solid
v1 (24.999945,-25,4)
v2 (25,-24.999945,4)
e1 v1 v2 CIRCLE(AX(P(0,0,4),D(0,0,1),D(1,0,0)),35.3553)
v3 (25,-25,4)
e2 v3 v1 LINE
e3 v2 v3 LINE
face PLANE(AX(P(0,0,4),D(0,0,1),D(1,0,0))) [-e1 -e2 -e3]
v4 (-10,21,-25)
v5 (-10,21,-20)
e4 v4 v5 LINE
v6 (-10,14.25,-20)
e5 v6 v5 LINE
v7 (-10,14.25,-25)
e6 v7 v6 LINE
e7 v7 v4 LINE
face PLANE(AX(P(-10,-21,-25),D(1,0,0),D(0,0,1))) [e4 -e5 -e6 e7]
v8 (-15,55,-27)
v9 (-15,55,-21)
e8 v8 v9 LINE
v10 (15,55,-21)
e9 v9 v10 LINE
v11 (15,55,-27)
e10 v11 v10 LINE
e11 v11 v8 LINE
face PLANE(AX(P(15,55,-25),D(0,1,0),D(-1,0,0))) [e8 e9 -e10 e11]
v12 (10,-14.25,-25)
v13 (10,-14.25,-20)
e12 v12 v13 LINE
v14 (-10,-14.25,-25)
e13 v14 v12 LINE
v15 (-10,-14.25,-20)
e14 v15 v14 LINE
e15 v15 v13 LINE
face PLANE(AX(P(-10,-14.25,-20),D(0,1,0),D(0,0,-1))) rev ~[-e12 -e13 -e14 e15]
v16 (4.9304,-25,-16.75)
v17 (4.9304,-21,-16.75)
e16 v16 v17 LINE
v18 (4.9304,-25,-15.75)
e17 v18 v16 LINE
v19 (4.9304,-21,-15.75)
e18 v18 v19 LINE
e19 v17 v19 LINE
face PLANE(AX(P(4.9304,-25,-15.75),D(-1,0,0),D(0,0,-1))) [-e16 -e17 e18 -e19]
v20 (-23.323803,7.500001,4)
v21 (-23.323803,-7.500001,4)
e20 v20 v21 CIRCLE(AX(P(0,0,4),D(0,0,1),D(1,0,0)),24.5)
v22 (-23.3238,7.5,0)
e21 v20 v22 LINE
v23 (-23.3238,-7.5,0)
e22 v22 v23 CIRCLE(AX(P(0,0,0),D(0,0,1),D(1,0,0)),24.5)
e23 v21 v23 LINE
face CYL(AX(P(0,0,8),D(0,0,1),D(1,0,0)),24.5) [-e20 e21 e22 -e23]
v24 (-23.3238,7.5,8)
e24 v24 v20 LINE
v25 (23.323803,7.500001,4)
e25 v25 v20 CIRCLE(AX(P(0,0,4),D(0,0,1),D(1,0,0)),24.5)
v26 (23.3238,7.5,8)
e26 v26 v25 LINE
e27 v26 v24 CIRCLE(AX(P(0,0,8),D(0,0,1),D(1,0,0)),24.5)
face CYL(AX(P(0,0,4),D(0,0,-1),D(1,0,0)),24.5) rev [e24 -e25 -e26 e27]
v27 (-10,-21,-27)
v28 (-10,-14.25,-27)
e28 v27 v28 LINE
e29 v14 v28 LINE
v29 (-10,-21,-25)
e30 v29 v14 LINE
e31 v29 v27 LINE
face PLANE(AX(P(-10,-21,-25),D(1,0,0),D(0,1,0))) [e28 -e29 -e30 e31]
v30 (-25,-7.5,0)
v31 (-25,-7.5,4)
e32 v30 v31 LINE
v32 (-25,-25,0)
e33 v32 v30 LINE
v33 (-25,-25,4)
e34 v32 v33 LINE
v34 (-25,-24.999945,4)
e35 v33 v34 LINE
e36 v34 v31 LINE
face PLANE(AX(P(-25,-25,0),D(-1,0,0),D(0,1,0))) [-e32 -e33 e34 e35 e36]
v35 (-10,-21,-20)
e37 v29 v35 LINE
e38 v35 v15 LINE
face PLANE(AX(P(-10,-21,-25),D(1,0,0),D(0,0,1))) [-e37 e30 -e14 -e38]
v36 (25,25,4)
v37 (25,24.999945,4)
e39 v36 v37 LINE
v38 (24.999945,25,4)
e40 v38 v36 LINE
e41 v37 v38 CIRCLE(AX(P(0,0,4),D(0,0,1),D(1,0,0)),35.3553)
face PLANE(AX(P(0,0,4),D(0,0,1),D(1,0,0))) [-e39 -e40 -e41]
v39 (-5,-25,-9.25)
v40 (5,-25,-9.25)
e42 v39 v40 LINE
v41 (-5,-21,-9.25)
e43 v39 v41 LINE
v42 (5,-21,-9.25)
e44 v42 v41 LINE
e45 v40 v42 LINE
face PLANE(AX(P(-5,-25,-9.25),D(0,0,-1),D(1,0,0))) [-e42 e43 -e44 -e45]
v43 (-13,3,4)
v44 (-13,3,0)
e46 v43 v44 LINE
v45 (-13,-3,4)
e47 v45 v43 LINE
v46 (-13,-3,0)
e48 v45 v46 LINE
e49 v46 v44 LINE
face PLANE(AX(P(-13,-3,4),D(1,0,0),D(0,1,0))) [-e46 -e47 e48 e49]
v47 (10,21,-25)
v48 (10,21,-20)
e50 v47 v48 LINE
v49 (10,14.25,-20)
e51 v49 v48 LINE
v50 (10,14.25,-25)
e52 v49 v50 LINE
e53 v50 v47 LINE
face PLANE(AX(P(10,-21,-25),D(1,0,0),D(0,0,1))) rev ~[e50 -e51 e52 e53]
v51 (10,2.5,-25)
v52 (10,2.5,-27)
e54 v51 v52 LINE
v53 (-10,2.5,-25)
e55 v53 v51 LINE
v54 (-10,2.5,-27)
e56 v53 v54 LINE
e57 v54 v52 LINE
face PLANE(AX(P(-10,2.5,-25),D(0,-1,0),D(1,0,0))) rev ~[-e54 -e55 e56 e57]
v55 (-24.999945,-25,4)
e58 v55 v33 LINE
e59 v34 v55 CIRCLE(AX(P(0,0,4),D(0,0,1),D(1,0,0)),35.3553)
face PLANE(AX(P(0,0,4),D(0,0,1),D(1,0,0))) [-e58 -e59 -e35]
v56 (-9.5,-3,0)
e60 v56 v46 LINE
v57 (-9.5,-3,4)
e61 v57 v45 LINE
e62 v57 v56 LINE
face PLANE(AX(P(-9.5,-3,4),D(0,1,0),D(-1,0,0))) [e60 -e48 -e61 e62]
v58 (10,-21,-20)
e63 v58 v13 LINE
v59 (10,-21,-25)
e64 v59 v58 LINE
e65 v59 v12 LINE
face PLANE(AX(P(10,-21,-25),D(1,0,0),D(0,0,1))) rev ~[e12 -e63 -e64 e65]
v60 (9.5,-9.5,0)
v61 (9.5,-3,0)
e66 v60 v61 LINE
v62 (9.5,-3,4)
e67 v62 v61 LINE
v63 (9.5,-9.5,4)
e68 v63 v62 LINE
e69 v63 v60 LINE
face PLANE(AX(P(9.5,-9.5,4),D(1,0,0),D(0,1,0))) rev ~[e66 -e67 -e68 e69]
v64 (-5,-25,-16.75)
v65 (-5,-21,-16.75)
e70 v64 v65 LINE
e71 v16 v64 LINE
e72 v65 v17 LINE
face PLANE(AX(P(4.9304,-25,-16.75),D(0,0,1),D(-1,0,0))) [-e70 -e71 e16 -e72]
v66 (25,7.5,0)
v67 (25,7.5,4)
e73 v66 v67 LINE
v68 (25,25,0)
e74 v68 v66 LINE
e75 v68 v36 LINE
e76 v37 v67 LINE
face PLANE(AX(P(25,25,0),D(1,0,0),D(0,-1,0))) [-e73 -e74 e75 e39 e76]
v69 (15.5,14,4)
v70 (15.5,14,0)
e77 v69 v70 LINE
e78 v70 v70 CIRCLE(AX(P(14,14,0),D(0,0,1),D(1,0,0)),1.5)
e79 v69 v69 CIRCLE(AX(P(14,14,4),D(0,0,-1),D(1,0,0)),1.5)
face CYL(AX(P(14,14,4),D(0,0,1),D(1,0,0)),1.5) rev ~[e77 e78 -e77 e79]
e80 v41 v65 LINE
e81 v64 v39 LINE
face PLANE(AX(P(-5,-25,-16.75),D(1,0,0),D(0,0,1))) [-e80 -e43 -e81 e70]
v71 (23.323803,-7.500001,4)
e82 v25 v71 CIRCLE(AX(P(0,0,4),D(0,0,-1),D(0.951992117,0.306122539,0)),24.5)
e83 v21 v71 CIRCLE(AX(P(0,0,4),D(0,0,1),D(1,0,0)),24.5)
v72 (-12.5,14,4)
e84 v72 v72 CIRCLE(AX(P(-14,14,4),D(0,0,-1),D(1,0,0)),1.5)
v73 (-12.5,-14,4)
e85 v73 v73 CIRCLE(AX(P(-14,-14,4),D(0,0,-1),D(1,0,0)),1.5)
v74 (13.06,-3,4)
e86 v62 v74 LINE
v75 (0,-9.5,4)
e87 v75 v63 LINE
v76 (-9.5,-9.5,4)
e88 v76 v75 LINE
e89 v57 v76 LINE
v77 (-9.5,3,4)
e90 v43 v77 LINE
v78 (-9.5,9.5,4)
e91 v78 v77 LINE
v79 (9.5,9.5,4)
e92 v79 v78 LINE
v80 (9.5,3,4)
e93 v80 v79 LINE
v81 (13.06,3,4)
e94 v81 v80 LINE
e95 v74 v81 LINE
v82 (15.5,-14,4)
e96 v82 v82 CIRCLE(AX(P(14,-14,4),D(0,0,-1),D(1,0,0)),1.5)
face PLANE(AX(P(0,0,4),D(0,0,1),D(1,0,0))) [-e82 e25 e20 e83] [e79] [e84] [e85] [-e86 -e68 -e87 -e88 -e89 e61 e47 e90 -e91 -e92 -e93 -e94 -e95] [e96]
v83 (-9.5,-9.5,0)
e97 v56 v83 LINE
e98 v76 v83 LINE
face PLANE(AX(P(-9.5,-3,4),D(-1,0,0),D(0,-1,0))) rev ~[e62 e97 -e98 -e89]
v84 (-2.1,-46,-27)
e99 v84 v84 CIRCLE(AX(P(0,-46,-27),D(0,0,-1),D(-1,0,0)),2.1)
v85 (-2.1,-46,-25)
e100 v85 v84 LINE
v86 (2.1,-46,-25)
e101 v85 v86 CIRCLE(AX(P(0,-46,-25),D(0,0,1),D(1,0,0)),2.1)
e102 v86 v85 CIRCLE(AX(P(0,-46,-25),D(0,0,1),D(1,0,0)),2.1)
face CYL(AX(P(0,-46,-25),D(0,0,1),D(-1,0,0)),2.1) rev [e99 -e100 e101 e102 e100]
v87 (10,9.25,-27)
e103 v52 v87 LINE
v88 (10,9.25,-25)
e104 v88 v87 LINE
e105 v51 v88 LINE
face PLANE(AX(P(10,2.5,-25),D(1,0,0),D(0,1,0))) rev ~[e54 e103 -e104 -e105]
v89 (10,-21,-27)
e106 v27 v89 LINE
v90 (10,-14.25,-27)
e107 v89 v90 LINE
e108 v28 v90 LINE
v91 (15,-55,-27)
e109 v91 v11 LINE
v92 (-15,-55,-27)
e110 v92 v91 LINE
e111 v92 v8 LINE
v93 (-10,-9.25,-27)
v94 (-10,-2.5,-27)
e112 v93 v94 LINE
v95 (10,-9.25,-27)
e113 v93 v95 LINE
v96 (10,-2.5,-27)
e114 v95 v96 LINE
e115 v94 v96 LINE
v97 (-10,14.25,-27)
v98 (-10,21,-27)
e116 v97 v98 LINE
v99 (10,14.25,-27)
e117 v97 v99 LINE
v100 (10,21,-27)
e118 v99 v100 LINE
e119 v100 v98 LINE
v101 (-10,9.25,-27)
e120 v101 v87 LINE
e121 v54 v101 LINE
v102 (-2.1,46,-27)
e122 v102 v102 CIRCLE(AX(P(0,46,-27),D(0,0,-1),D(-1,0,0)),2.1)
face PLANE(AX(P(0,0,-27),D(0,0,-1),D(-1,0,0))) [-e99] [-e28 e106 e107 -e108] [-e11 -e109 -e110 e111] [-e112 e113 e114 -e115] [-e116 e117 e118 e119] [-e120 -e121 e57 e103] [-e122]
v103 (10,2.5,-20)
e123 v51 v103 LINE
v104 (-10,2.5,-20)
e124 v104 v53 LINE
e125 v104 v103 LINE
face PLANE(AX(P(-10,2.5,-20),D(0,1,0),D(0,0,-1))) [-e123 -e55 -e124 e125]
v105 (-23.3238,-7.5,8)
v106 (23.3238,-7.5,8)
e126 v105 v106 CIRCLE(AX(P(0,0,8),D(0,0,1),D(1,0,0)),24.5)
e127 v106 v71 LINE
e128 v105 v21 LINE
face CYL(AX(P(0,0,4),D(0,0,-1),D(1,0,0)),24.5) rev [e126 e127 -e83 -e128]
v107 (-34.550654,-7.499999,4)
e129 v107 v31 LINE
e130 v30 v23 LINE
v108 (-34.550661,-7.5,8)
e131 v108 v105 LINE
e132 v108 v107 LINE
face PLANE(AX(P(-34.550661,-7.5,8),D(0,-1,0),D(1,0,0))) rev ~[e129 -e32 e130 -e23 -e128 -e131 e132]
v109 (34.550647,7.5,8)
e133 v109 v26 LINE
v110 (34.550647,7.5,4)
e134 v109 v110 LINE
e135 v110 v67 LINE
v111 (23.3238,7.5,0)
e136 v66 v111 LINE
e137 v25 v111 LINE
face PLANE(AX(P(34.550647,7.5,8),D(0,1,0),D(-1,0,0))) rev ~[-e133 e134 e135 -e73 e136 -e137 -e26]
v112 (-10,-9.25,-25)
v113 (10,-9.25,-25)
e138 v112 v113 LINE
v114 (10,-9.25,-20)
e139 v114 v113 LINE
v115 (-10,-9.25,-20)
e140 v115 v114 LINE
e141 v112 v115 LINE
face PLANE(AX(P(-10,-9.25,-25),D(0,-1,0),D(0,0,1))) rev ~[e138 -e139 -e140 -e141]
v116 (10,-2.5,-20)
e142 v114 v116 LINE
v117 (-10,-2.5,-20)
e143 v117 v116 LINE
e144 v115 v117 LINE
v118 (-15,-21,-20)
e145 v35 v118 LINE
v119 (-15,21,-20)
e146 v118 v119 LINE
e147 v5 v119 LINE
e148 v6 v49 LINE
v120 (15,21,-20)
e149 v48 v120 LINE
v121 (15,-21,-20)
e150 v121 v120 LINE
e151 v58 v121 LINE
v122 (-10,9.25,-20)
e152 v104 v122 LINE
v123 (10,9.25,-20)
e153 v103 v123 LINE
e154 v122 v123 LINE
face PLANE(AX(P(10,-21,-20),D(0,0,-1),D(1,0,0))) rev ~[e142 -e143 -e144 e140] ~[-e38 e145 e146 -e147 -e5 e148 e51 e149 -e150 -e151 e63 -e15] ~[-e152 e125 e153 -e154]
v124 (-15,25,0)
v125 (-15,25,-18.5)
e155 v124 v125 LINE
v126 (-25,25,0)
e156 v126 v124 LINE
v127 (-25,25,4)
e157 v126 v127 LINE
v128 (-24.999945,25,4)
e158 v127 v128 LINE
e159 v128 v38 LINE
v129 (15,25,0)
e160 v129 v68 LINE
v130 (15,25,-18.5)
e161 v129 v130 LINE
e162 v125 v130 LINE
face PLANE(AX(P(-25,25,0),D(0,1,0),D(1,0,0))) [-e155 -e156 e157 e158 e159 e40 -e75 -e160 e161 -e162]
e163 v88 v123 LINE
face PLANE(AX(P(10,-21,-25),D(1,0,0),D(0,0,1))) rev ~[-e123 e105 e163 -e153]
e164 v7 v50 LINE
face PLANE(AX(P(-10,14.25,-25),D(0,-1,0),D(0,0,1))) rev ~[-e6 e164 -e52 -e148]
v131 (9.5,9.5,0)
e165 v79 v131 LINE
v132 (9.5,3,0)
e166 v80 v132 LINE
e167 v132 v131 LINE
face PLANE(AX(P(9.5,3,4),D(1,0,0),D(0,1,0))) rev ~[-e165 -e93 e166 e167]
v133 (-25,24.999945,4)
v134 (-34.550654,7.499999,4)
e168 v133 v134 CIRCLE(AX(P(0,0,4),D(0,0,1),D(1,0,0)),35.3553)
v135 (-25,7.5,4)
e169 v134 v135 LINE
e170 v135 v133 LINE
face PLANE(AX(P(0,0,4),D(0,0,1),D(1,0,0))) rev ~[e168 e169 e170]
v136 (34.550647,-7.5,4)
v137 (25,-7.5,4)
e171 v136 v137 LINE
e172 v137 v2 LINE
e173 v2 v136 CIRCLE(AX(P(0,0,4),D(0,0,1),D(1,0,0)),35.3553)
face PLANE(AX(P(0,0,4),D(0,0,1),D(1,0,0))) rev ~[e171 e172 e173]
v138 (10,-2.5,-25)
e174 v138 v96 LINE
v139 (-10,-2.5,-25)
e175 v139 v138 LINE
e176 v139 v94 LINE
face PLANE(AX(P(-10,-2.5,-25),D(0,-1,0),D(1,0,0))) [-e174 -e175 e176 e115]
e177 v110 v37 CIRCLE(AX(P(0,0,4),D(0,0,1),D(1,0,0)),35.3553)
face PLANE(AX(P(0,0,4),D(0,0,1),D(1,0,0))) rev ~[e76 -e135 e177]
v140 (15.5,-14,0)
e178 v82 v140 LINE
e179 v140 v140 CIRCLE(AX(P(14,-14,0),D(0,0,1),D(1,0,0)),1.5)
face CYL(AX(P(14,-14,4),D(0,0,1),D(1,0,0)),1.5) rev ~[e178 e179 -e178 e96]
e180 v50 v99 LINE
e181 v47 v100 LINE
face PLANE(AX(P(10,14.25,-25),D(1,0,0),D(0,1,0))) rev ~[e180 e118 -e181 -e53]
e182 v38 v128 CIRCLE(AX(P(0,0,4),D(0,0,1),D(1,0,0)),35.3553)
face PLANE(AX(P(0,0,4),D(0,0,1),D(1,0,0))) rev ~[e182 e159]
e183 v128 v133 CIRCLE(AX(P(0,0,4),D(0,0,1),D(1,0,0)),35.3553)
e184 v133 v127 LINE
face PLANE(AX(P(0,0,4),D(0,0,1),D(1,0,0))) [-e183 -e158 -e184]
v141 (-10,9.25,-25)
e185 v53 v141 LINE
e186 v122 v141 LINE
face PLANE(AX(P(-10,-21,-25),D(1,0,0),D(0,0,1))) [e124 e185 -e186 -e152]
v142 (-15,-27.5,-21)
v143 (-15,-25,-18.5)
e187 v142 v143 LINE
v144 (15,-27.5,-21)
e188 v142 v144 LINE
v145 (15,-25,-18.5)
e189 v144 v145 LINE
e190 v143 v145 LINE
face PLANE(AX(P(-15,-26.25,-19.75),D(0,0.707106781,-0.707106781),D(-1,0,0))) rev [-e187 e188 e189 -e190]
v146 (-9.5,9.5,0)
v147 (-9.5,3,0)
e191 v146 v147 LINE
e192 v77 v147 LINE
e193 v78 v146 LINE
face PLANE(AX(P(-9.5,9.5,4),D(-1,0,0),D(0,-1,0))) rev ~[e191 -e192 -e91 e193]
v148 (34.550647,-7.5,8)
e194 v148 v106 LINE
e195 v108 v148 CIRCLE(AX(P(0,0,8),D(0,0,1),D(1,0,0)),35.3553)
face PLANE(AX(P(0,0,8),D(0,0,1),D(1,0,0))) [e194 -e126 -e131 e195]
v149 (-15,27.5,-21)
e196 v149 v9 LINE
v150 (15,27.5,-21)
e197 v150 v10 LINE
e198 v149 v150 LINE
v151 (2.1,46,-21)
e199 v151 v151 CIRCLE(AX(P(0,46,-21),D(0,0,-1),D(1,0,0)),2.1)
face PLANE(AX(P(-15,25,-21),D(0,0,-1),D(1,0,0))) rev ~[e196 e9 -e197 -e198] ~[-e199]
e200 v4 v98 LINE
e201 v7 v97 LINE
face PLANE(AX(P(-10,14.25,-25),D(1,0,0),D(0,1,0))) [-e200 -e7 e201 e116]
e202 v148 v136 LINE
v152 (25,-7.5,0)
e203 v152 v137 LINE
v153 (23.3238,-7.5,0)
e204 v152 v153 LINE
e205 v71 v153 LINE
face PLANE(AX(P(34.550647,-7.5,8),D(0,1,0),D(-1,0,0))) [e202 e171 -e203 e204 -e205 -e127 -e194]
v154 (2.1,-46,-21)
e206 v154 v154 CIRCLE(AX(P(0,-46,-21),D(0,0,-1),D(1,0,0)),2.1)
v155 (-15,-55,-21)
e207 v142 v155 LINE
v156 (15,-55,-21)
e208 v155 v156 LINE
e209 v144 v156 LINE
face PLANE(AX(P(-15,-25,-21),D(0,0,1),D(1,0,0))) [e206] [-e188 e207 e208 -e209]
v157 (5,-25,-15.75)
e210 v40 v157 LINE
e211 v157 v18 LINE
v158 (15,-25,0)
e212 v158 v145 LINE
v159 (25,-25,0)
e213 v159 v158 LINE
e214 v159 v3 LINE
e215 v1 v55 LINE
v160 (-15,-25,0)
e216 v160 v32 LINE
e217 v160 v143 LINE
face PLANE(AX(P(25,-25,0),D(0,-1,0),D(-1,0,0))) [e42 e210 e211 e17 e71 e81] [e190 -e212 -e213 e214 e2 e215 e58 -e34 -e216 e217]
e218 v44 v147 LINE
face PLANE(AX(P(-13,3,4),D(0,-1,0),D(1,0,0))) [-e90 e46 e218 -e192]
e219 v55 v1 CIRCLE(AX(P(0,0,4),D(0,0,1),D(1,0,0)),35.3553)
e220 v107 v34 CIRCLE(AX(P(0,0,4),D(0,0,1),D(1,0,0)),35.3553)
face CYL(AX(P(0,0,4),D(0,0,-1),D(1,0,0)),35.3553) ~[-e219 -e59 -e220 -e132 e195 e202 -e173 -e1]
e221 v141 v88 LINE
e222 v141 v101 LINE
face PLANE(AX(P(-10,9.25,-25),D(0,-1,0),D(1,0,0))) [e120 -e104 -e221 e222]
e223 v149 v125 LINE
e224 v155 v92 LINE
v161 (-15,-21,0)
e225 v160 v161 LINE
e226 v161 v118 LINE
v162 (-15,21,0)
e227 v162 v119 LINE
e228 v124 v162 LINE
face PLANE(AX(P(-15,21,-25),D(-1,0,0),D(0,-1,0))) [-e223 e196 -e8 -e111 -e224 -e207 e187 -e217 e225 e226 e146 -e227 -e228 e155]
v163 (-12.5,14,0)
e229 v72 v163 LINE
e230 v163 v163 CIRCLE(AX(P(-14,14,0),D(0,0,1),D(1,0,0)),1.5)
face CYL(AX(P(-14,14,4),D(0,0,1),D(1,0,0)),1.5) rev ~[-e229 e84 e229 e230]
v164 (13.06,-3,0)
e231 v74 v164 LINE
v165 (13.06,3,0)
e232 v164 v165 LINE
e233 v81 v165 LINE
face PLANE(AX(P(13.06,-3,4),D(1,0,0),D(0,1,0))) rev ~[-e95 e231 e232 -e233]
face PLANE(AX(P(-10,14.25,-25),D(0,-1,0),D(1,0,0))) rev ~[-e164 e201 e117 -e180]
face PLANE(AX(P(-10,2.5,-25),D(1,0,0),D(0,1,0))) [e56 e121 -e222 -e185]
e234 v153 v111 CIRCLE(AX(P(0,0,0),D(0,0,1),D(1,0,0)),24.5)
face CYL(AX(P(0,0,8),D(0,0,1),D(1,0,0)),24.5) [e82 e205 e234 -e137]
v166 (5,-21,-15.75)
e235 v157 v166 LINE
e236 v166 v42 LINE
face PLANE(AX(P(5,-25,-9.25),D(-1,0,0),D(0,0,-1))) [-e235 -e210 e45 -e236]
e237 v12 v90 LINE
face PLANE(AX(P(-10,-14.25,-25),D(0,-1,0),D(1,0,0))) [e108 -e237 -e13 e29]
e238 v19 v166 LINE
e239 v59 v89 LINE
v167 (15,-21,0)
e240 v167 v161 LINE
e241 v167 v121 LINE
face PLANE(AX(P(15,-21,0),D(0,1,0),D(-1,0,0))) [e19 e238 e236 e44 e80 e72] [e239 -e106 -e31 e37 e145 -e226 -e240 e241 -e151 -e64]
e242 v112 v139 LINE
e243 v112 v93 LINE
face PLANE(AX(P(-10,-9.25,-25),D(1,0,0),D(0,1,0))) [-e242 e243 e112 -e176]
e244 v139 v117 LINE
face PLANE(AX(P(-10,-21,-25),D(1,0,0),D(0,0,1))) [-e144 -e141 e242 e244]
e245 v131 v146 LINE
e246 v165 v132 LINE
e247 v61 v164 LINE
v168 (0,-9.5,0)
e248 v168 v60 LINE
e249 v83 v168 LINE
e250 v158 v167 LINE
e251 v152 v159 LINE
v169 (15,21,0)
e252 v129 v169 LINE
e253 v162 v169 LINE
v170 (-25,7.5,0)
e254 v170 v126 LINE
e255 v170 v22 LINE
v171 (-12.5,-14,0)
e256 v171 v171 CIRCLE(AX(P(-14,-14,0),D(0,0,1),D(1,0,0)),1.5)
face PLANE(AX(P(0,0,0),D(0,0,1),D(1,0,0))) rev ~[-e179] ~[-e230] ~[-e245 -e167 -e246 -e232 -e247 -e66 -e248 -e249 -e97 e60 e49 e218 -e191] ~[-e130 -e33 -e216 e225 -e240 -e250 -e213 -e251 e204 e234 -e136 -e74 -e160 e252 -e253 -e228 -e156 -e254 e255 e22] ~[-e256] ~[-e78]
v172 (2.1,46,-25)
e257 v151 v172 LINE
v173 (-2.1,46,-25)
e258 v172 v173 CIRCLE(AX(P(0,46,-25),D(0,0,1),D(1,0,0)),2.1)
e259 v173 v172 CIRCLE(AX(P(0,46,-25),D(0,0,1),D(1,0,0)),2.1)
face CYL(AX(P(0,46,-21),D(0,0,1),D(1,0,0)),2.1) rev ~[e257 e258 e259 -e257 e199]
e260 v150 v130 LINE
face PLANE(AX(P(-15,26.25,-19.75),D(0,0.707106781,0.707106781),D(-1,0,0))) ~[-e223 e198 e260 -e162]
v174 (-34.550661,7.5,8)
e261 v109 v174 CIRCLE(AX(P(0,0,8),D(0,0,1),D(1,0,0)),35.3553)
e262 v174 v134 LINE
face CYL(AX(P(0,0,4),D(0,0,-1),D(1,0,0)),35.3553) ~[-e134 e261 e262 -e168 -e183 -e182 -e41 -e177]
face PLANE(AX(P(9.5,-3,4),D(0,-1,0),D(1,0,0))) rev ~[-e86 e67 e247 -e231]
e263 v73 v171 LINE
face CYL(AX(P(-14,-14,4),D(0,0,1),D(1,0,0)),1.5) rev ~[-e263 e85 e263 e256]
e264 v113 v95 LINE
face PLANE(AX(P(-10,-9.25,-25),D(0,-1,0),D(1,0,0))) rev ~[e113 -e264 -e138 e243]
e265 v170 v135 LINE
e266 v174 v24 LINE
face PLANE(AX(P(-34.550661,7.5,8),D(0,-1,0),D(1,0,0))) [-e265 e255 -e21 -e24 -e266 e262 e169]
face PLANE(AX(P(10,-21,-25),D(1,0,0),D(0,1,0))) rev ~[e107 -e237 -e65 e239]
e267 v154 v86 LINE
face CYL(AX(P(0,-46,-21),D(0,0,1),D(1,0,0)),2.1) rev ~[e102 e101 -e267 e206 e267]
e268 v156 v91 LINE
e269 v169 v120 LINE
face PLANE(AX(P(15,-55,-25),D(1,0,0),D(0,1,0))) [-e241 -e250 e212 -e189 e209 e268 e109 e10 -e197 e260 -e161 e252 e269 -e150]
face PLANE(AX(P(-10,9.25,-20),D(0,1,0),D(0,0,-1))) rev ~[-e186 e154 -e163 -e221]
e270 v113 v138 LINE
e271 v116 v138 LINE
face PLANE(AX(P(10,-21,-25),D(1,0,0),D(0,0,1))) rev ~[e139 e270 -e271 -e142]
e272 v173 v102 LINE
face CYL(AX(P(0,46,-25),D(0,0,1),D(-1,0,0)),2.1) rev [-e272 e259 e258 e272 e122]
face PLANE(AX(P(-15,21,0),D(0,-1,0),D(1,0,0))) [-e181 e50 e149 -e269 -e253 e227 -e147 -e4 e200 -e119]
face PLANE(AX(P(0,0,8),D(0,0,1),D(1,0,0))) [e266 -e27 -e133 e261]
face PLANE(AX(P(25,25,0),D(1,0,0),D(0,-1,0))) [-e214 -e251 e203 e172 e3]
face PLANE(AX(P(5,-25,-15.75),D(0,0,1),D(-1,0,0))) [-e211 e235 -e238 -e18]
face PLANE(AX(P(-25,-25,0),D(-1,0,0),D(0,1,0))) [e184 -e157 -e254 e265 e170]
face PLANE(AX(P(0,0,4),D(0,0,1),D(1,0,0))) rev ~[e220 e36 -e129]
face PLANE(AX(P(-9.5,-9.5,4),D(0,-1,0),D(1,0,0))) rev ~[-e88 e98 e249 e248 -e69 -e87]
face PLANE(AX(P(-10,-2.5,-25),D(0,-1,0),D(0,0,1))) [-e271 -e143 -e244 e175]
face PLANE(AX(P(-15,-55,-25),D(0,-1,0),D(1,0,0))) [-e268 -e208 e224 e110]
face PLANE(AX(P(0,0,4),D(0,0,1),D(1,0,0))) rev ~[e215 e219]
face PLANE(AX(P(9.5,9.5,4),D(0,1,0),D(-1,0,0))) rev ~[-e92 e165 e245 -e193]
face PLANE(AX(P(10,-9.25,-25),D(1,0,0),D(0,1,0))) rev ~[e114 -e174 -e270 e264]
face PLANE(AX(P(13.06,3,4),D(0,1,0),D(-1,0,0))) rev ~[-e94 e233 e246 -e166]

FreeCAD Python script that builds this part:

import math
import FreeCAD as App
import Part
import Sketcher
from FreeCAD import Vector
Q = App.Units.Quantity


def edges_at(feature, points):
    """Names of the edges that pass closest to the given points."""
    edges = feature.Shape.Edges
    near = lambda p: min(range(len(edges)), key=lambda i: edges[i].distToShape(Part.Vertex(*p))[0])
    return sorted({f"Edge{near(p) + 1}" for p in points})


def add_polygon(sketch, points):
    """Adds a closed chain of lines whose ends are joined by coincident constraints."""
    first, n = sketch.GeometryCount, len(points)
    for a, b in zip(points, points[1:] + points[:1]):
        sketch.addGeometry(Part.LineSegment(App.Vector(*a, 0), App.Vector(*b, 0)), False)
    for i in range(n):
        sketch.addConstraint(Sketcher.Constraint("Coincident", first + i, 2, first + (i + 1) % n, 1))

doc = App.newDocument("Part")
body = doc.addObject("PartDesign::Body", "Body")

sketch1 = doc.addObject("Sketcher::SketchObject", "Sketch")
body.addObject(sketch1)
sketch1.AttachmentSupport = (doc.XY_Plane, [""])
sketch1.MapMode = "FlatFace"
add_polygon(sketch1, [(25, 25), (-25, 25), (-25, -25), (25, -25)])
sketch1.addGeometry(Part.ArcOfCircle(Part.Circle(Vector(-8.2, -2.2, 0), Vector(0, 0, 1), 0.2), math.radians(0), math.radians(90)), False)
sketch1.addGeometry(Part.LineSegment(Vector(-8.2, -2, 0), Vector(-9, -2, 0)), False)
sketch1.addGeometry(Part.ArcOfCircle(Part.Circle(Vector(-9, 0, 0), Vector(0, 0, 1), 2), math.radians(90), math.radians(270)), False)
sketch1.addGeometry(Part.LineSegment(Vector(-9, 2, 0), Vector(-8.2, 2, 0)), False)
sketch1.addGeometry(Part.ArcOfCircle(Part.Circle(Vector(-8.2, 2.2, 0), Vector(0, 0, 1), 0.2), math.radians(-90), math.radians(0)), False)
sketch1.addGeometry(Part.LineSegment(Vector(-8, 2.2, 0), Vector(-8, 7.8, 0)), False)
sketch1.addGeometry(Part.ArcOfCircle(Part.Circle(Vector(-7.8, 7.8, 0), Vector(0, 0, 1), 0.2), math.radians(90), math.radians(180)), False)
sketch1.addGeometry(Part.LineSegment(Vector(-7.8, 8, 0), Vector(7.8, 8, 0)), False)
sketch1.addGeometry(Part.ArcOfCircle(Part.Circle(Vector(7.8, 7.8, 0), Vector(0, 0, 1), 0.2), math.radians(0), math.radians(90)), False)
sketch1.addGeometry(Part.LineSegment(Vector(8, 7.8, 0), Vector(8, 2.2, 0)), False)
sketch1.addGeometry(Part.ArcOfCircle(Part.Circle(Vector(8.2, 2.2, 0), Vector(0, 0, 1), 0.2), math.radians(180), math.radians(270)), False)
sketch1.addGeometry(Part.LineSegment(Vector(8.2, 2, 0), Vector(9, 2, 0)), False)
sketch1.addGeometry(Part.ArcOfCircle(Part.Circle(Vector(9, 0, 0), Vector(0, 0, 1), 2), math.radians(-90), math.radians(90)), False)
sketch1.addGeometry(Part.LineSegment(Vector(9, -2, 0), Vector(8.2, -2, 0)), False)
sketch1.addGeometry(Part.ArcOfCircle(Part.Circle(Vector(8.2, -2.2, 0), Vector(0, 0, 1), 0.2), math.radians(90), math.radians(180)), False)
sketch1.addGeometry(Part.LineSegment(Vector(8, -2.2, 0), Vector(8, -7.8, 0)), False)
sketch1.addGeometry(Part.ArcOfCircle(Part.Circle(Vector(7.8, -7.8, 0), Vector(0, 0, 1), 0.2), math.radians(-90), math.radians(0)), False)
sketch1.addGeometry(Part.LineSegment(Vector(7.8, -8, 0), Vector(0, -8, 0)), False)
sketch1.addGeometry(Part.LineSegment(Vector(0, -8, 0), Vector(-7.8, -8, 0)), False)
sketch1.addGeometry(Part.ArcOfCircle(Part.Circle(Vector(-7.8, -7.8, 0), Vector(0, 0, 1), 0.2), math.radians(180), math.radians(270)), False)
sketch1.addGeometry(Part.LineSegment(Vector(-8, -7.8, 0), Vector(-8, -2.2, 0)), False)
sketch1.addConstraint([
    Sketcher.Constraint("Tangent", 4, 2, 5, 1),
    Sketcher.Constraint("Tangent", 5, 2, 6, 2),
    Sketcher.Constraint("Tangent", 6, 1, 7, 1),
    Sketcher.Constraint("Tangent", 7, 2, 8, 1),
    Sketcher.Constraint("Tangent", 8, 2, 9, 1),
    Sketcher.Constraint("Tangent", 9, 2, 10, 2),
    Sketcher.Constraint("Tangent", 10, 1, 11, 1),
    Sketcher.Constraint("Tangent", 11, 2, 12, 2),
    Sketcher.Constraint("Tangent", 12, 1, 13, 1),
    Sketcher.Constraint("Tangent", 13, 2, 14, 1),
    Sketcher.Constraint("Tangent", 14, 2, 15, 1),
    Sketcher.Constraint("Tangent", 15, 2, 16, 2),
    Sketcher.Constraint("Tangent", 16, 1, 17, 1),
    Sketcher.Constraint("Tangent", 17, 2, 18, 1),
    Sketcher.Constraint("Tangent", 18, 2, 19, 1),
    Sketcher.Constraint("Tangent", 19, 2, 20, 2),
    Sketcher.Constraint("Tangent", 20, 1, 21, 1),
    Sketcher.Constraint("Coincident", 21, 2, 22, 1),
    Sketcher.Constraint("Tangent", 22, 2, 23, 2),
    Sketcher.Constraint("Tangent", 23, 1, 24, 1),
    Sketcher.Constraint("Tangent", 24, 2, 4, 1),
    Sketcher.Constraint("Horizontal", 0),
    Sketcher.Constraint("Vertical", 1),
    Sketcher.Constraint("Horizontal", 2),
    Sketcher.Constraint("Vertical", 3),
    Sketcher.Constraint("Horizontal", 5),
    Sketcher.Constraint("Horizontal", 7),
    Sketcher.Constraint("Vertical", 9),
    Sketcher.Constraint("Horizontal", 11),
    Sketcher.Constraint("Vertical", 13),
    Sketcher.Constraint("Horizontal", 15),
    Sketcher.Constraint("Horizontal", 17),
    Sketcher.Constraint("Vertical", 19),
    Sketcher.Constraint("Horizontal", 21),
    Sketcher.Constraint("Horizontal", 22),
    Sketcher.Constraint("Vertical", 24),
    Sketcher.Constraint("Equal", 4, 8),
    Sketcher.Constraint("Equal", 8, 10),
    Sketcher.Constraint("Equal", 10, 12),
    Sketcher.Constraint("Equal", 12, 14),
    Sketcher.Constraint("Equal", 6, 16),
    Sketcher.Constraint("Equal", 14, 18),
    Sketcher.Constraint("Equal", 18, 20),
    Sketcher.Constraint("Equal", 20, 23),
    Sketcher.Constraint("Symmetric", 4, 3, 14, 3, -1, 1),
    Sketcher.Constraint("Symmetric", 10, 3, 20, 3, -1, 1),
    Sketcher.Constraint("Symmetric", 0, 2, 2, 2, -1, 1),
    Sketcher.Constraint("Symmetric", 8, 3, 14, 3, -2),
    Sketcher.Constraint("PointOnObject", 21, 2, -2),
    Sketcher.Constraint("Equal", 7, 15),
    Sketcher.Constraint("Equal", 2, 1),
    Sketcher.Constraint("Radius", 6, Q("2 mm")),
    Sketcher.Constraint("Radius", 4, Q("0.2 mm")),
    Sketcher.Constraint("DistanceX", 0, 2, 0, 1, Q("50 mm")),
    Sketcher.Constraint("DistanceX", 5, 2, 5, 1, Q("0.8 mm")),
    Sketcher.Constraint("DistanceX", 11, 1, 11, 2, Q("15.6 mm")),
    Sketcher.Constraint("DistanceY", 9, 1, 9, 2, Q("5.6 mm")),
])
pad1 = doc.addObject("PartDesign::Pad", "Pad")
body.addObject(pad1)
pad1.Profile = sketch1
pad1.Length = 4

sketch2 = doc.addObject("Sketcher::SketchObject", "Sketch001")
body.addObject(sketch2)
sketch2.AttachmentSupport = (doc.XY_Plane, [""])
sketch2.MapMode = "FlatFace"
sketch2.AttachmentOffset = App.Placement(Vector(0, 0, 4), App.Rotation())
sketch2.addGeometry([
    Part.Circle(Vector(0, 0, 0), Vector(0, 0, 1), 35.3553),
    Part.Circle(Vector(0, 0, 0), Vector(0, 0, 1), 24.5),
], False)
sketch2.addConstraint([
    Sketcher.Constraint("Coincident", 0, 3, -1, 1),
    Sketcher.Constraint("Coincident", 1, 3, -1, 1),
    Sketcher.Constraint("Diameter", 1, Q("49 mm")),
    Sketcher.Constraint("Diameter", 0, Q("70.7106 mm")),
])
pad2 = doc.addObject("PartDesign::Pad", "Pad001")
body.addObject(pad2)
pad2.Profile = sketch2
pad2.Length = 4

sketch3 = doc.addObject("Sketcher::SketchObject", "Sketch002")
body.addObject(sketch3)
sketch3.AttachmentSupport = (doc.XY_Plane, [""])
sketch3.MapMode = "FlatFace"
add_polygon(sketch3, [(-15, 21), (-15, 25), (15, 25), (15, 21)])
add_polygon(sketch3, [(15, -25), (-15, -25), (-15, -21), (15, -21)])
sketch3.addConstraint([
    Sketcher.Constraint("Vertical", 0),
    Sketcher.Constraint("Horizontal", 1),
    Sketcher.Constraint("Vertical", 2),
    Sketcher.Constraint("Horizontal", 3),
    Sketcher.Constraint("Horizontal", 4),
    Sketcher.Constraint("Vertical", 5),
    Sketcher.Constraint("Horizontal", 6),
    Sketcher.Constraint("Vertical", 7),
    Sketcher.Constraint("Symmetric", 1, 2, 4, 2, -1, 1),
    Sketcher.Constraint("Symmetric", 3, 2, 6, 2, -1, 1),
    Sketcher.Constraint("Vertical", 3, 2, 4, 2),
    Sketcher.Constraint("DistanceX", 1, 1, 1, 2, Q("30 mm")),
    Sketcher.Constraint("DistanceY", 0, 1, 0, 2, Q("4 mm")),
    Sketcher.Constraint("DistanceY", -1, 1, 0, 2, Q("25 mm")),
])
pad3 = doc.addObject("PartDesign::Pad", "Pad002")
body.addObject(pad3)
pad3.Profile = sketch3
pad3.Length = 25
pad3.Reversed = True

sketch4 = doc.addObject("Sketcher::SketchObject", "Sketch003")
body.addObject(sketch4)
sketch4.AttachmentSupport = (doc.XZ_Plane, [""])
sketch4.MapMode = "FlatFace"
sketch4.AttachmentOffset = App.Placement(Vector(0, 0, 25), App.Rotation())
add_polygon(sketch4, [(-15, -21), (-15, -25), (15, -25), (15, -21)])
sketch4.addConstraint([
    Sketcher.Constraint("Vertical", 0),
    Sketcher.Constraint("Horizontal", 1),
    Sketcher.Constraint("Vertical", 2),
    Sketcher.Constraint("Horizontal", 3),
    Sketcher.Constraint("DistanceY", 0, 2, 0, 1, Q("4 mm")),
    Sketcher.Constraint("DistanceX", 1, 1, 1, 2, Q("30 mm")),
    Sketcher.Constraint("DistanceX", 0, 2, -1, 1, Q("15 mm")),
    Sketcher.Constraint("DistanceY", 0, 2, -1, 1, Q("25 mm")),
])
pad4 = doc.addObject("PartDesign::Pad", "Pad003")
body.addObject(pad4)
pad4.Profile = sketch4
pad4.Length = 30

sketch5 = doc.addObject("Sketcher::SketchObject", "Sketch004")
body.addObject(sketch5)
sketch5.AttachmentSupport = (doc.XZ_Plane, [""])
sketch5.MapMode = "FlatFace"
sketch5.AttachmentOffset = App.Placement(Vector(0, 0, -25), App.Rotation())
add_polygon(sketch5, [(15, -25), (-15, -25), (-15, -21), (15, -21)])
sketch5.addConstraint([
    Sketcher.Constraint("Horizontal", 0),
    Sketcher.Constraint("Vertical", 1),
    Sketcher.Constraint("Horizontal", 2),
    Sketcher.Constraint("Vertical", 3),
    Sketcher.Constraint("DistanceY", 1, 1, 1, 2, Q("4 mm")),
    Sketcher.Constraint("DistanceX", 0, 2, 0, 1, Q("30 mm")),
    Sketcher.Constraint("DistanceX", 0, 2, -1, 1, Q("15 mm")),
    Sketcher.Constraint("DistanceY", 0, 2, -1, 1, Q("25 mm")),
])
pad5 = doc.addObject("PartDesign::Pad", "Pad004")
body.addObject(pad5)
pad5.Profile = sketch5
pad5.Length = 30
pad5.Reversed = True

sketch6 = doc.addObject("Sketcher::SketchObject", "Sketch005")
body.addObject(sketch6)
sketch6.AttachmentSupport = (doc.XZ_Plane, [""])
sketch6.MapMode = "FlatFace"
sketch6.AttachmentOffset = App.Placement(Vector(0, 0, 21), App.Rotation())
add_polygon(sketch6, [(15, -25), (10, -25), (10, -20), (15, -20)])
add_polygon(sketch6, [(-10, -25), (-15, -25), (-15, -20), (-10, -20)])
sketch6.addConstraint([
    Sketcher.Constraint("Horizontal", 0),
    Sketcher.Constraint("Vertical", 1),
    Sketcher.Constraint("Horizontal", 2),
    Sketcher.Constraint("Vertical", 3),
    Sketcher.Constraint("Horizontal", 4),
    Sketcher.Constraint("Vertical", 5),
    Sketcher.Constraint("Horizontal", 6),
    Sketcher.Constraint("Vertical", 7),
    Sketcher.Constraint("Symmetric", 3, 2, 4, 2, -2),
    Sketcher.Constraint("Symmetric", 1, 2, 6, 2, -2),
    Sketcher.Constraint("Equal", 6, 1),
    Sketcher.Constraint("DistanceX", 0, 2, 0, 1, Q("5 mm")),
    Sketcher.Constraint("DistanceX", -1, 1, 0, 2, Q("10 mm")),
    Sketcher.Constraint("DistanceY", 0, 2, -1, 1, Q("25 mm")),
])
pad6 = doc.addObject("PartDesign::Pad", "Pad005")
body.addObject(pad6)
pad6.Profile = sketch6
pad6.Length = 44
pad6.Reversed = True

sketch7 = doc.addObject("Sketcher::SketchObject", "Sketch006")
body.addObject(sketch7)
sketch7.AttachmentSupport = (doc.XY_Plane, [""])
sketch7.MapMode = "FlatFace"
sketch7.AttachmentOffset = App.Placement(Vector(0, 0, 4), App.Rotation())
add_polygon(sketch7, [(9.5, 9.5), (-9.5, 9.5), (-9.5, 3), (-13, 3), (-13, -3), (-9.5, -3), (-9.5, -9.5), (9.5, -9.5), (9.5, -3), (13.06, -3), (13.06, 3), (9.5, 3)])
sketch7.addConstraint([
    Sketcher.Constraint("Horizontal", 0),
    Sketcher.Constraint("Vertical", 1),
    Sketcher.Constraint("Horizontal", 2),
    Sketcher.Constraint("Vertical", 3),
    Sketcher.Constraint("Horizontal", 4),
    Sketcher.Constraint("Vertical", 5),
    Sketcher.Constraint("Horizontal", 6),
    Sketcher.Constraint("Vertical", 7),
    Sketcher.Constraint("Horizontal", 8),
    Sketcher.Constraint("Vertical", 9),
    Sketcher.Constraint("Horizontal", 10),
    Sketcher.Constraint("Vertical", 11),
    Sketcher.Constraint("Symmetric", 0, 2, 6, 2, -1, 1),
    Sketcher.Constraint("Symmetric", 4, 2, 10, 2, -1, 1),
    Sketcher.Constraint("Symmetric", 4, 2, 7, 2, -2),
    Sketcher.Constraint("Horizontal", 2, 2, 9, 2),
    Sketcher.Constraint("DistanceX", 0, 2, 0, 1, Q("19 mm")),
    Sketcher.Constraint("DistanceY", 5, 2, 0, 2, Q("19 mm")),
    Sketcher.Constraint("DistanceY", 3, 2, 3, 1, Q("6 mm")),
    Sketcher.Constraint("DistanceX", 2, 2, 2, 1, Q("3.5 mm")),
    Sketcher.Constraint("DistanceX", 8, 1, 8, 2, Q("3.56 mm")),
])
pocket1 = doc.addObject("PartDesign::Pocket", "Pocket")
body.addObject(pocket1)
pocket1.Profile = sketch7
pocket1.Length = 15
doc.recompute()

chamfer = doc.addObject("PartDesign::Chamfer", "Chamfer")
body.addObject(chamfer)
chamfer.Base = (pocket1, edges_at(pocket1, [(0, -25, -21)]))
chamfer.Size = 2.5
doc.recompute()

chamfer2 = doc.addObject("PartDesign::Chamfer", "Chamfer001")
body.addObject(chamfer2)
chamfer2.Base = (chamfer, edges_at(chamfer, [(0, 25, -21)]))
chamfer2.Size = 2.5

sketch8 = doc.addObject("Sketcher::SketchObject", "Sketch007")
body.addObject(sketch8)
sketch8.AttachmentSupport = (doc.XZ_Plane, [""])
sketch8.MapMode = "FlatFace"
sketch8.AttachmentOffset = App.Placement(Vector(0, 0, 25), App.Rotation())
add_polygon(sketch8, [(-5, -15.75), (5, -15.75), (5, -9.25), (-5, -9.25)])
sketch8.addConstraint([
    Sketcher.Constraint("Horizontal", 0),
    Sketcher.Constraint("Vertical", 1),
    Sketcher.Constraint("Horizontal", 2),
    Sketcher.Constraint("Vertical", 3),
    Sketcher.Constraint("DistanceX", 0, 1, 0, 2, Q("10 mm")),
    Sketcher.Constraint("DistanceY", 1, 1, 1, 2, Q("6.5 mm")),
    Sketcher.Constraint("DistanceX", -1, 1, 0, 2, Q("5 mm")),
    Sketcher.Constraint("DistanceY", 0, 2, -1, 1, Q("15.75 mm")),
])
pocket2 = doc.addObject("PartDesign::Pocket", "Pocket001")
body.addObject(pocket2)
pocket2.Profile = sketch8
pocket2.Length = 8

sketch9 = doc.addObject("Sketcher::SketchObject", "Sketch008")
body.addObject(sketch9)
sketch9.AttachmentSupport = (doc.XZ_Plane, [""])
sketch9.MapMode = "FlatFace"
sketch9.AttachmentOffset = App.Placement(Vector(0, 0, 25), App.Rotation())
add_polygon(sketch9, [(4.9304, -15.75), (-5, -15.75), (-5, -16.75), (4.9304, -16.75)])
sketch9.addConstraint([
    Sketcher.Constraint("Horizontal", 0),
    Sketcher.Constraint("Vertical", 1),
    Sketcher.Constraint("Horizontal", 2),
    Sketcher.Constraint("Vertical", 3),
    Sketcher.Constraint("DistanceY", 1, 2, 1, 1, Q("1 mm")),
    Sketcher.Constraint("DistanceX", 0, 2, -1, 1, Q("5 mm")),
    Sketcher.Constraint("DistanceY", 0, 2, -1, 1, Q("15.75 mm")),
    Sketcher.Constraint("DistanceX", 0, 2, 0, 1, Q("9.9304 mm")),
])
pocket3 = doc.addObject("PartDesign::Pocket", "Pocket002")
body.addObject(pocket3)
pocket3.Profile = sketch9
pocket3.Length = 7.25

sketch10 = doc.addObject("Sketcher::SketchObject", "Sketch009")
body.addObject(sketch10)
sketch10.AttachmentSupport = (doc.XY_Plane, [""])
sketch10.MapMode = "FlatFace"
sketch10.AttachmentOffset = App.Placement(Vector(0, 0, 8), App.Rotation())
sketch10.addGeometry([
    Part.ArcOfCircle(Part.Circle(Vector(0, 0, 0), Vector(0, 0, 1), 35.3553), math.radians(-12.247338), math.radians(12.247338)),
    Part.LineSegment(Vector(34.550647, 7.5, 0), Vector(23.3238, 7.5, 0)),
    Part.ArcOfCircle(Part.Circle(Vector(0, 0, 0), Vector(0, 0, 1), 24.5), math.radians(-17.825711), math.radians(17.825711)),
    Part.LineSegment(Vector(23.3238, -7.5, 0), Vector(34.550647, -7.5, 0)),
    Part.LineSegment(Vector(-23.3238, 7.5, 0), Vector(-34.550661, 7.5, 0)),
    Part.ArcOfCircle(Part.Circle(Vector(0, 0, 0), Vector(0, 0, 1), 35.3553), math.radians(167.752667), math.radians(192.247333)),
    Part.LineSegment(Vector(-34.550661, -7.5, 0), Vector(-23.3238, -7.5, 0)),
    Part.ArcOfCircle(Part.Circle(Vector(0, 0, 0), Vector(0, 0, 1), 24.5), math.radians(162.174289), math.radians(197.825711)),
], False)
sketch10.addConstraint([
    Sketcher.Constraint("Coincident", 0, 2, 1, 1),
    Sketcher.Constraint("Coincident", 1, 2, 2, 2),
    Sketcher.Constraint("Coincident", 2, 1, 3, 1),
    Sketcher.Constraint("Coincident", 3, 2, 0, 1),
    Sketcher.Constraint("Coincident", 4, 2, 5, 1),
    Sketcher.Constraint("Coincident", 5, 2, 6, 1),
    Sketcher.Constraint("Coincident", 6, 2, 7, 2),
    Sketcher.Constraint("Coincident", 7, 1, 4, 1),
    Sketcher.Constraint("Horizontal", 1),
    Sketcher.Constraint("Horizontal", 3),
    Sketcher.Constraint("Horizontal", 4),
    Sketcher.Constraint("Horizontal", 6),
    Sketcher.Constraint("Coincident", 0, 3, -1, 1),
    Sketcher.Constraint("Coincident", 2, 3, -1, 1),
    Sketcher.Constraint("Coincident", 5, 3, -1, 1),
    Sketcher.Constraint("Coincident", 7, 3, -1, 1),
    Sketcher.Constraint("Equal", 0, 5),
    Sketcher.Constraint("Equal", 2, 7),
    Sketcher.Constraint("Horizontal", 1, 2, 4, 2),
    Sketcher.Constraint("Horizontal", 3, 2, 5, 2),
    Sketcher.Constraint("Vertical", 1, 2, 2, 1),
    Sketcher.Constraint("DistanceY", -1, 1, 0, 2, Q("7.5 mm")),
    Sketcher.Constraint("Radius", 2, Q("24.5 mm")),
    Sketcher.Constraint("Radius", 0, Q("35.3553 mm")),
])
pocket4 = doc.addObject("PartDesign::Pocket", "Pocket003")
body.addObject(pocket4)
pocket4.Profile = sketch10
pocket4.Length = 47.75

sketch11 = doc.addObject("Sketcher::SketchObject", "Sketch010")
body.addObject(sketch11)
sketch11.AttachmentSupport = (doc.YZ_Plane, [""])
sketch11.MapMode = "FlatFace"
sketch11.AttachmentOffset = App.Placement(Vector(0, 0, -10), App.Rotation())
add_polygon(sketch11, [(2.5, -25), (2.5, -20), (-2.5, -20), (-2.5, -25)])
sketch11.addConstraint([
    Sketcher.Constraint("Vertical", 0),
    Sketcher.Constraint("Horizontal", 1),
    Sketcher.Constraint("Vertical", 2),
    Sketcher.Constraint("Horizontal", 3),
    Sketcher.Constraint("Equal", 3, 0),
    Sketcher.Constraint("DistanceX", 1, 2, 1, 1, Q("5 mm")),
    Sketcher.Constraint("DistanceX", -1, 1, 0, 2, Q("2.5 mm")),
    Sketcher.Constraint("DistanceY", 0, 2, -1, 1, Q("20 mm")),
])
pad7 = doc.addObject("PartDesign::Pad", "Pad006")
body.addObject(pad7)
pad7.Profile = sketch11
pad7.Length = 21.25

sketch12 = doc.addObject("Sketcher::SketchObject", "Sketch011")
body.addObject(sketch12)
sketch12.AttachmentSupport = (doc.XY_Plane, [""])
sketch12.MapMode = "FlatFace"
sketch12.AttachmentOffset = App.Placement(Vector(0, 0, -21), App.Rotation())
sketch12.addGeometry([
    Part.Circle(Vector(0, -46, 0), Vector(0, 0, 1), 2.1),
    Part.Circle(Vector(0, 46, 0), Vector(0, 0, 1), 2.1),
], False)
sketch12.addConstraint([
    Sketcher.Constraint("Equal", 0, 1),
    Sketcher.Constraint("Symmetric", 0, 3, 1, 3, -1, 1),
    Sketcher.Constraint("PointOnObject", 0, 3, -2),
    Sketcher.Constraint("Diameter", 0, Q("4.2 mm")),
    Sketcher.Constraint("DistanceY", 0, 3, -1, 1, Q("46 mm")),
])
pocket5 = doc.addObject("PartDesign::Pocket", "Pocket004")
body.addObject(pocket5)
pocket5.Profile = sketch12
pocket5.Length = 41.25

sketch13 = doc.addObject("Sketcher::SketchObject", "Sketch012")
body.addObject(sketch13)
sketch13.AttachmentSupport = (doc.XY_Plane, [""])
sketch13.MapMode = "FlatFace"
sketch13.AttachmentOffset = App.Placement(Vector(0, 0, 4), App.Rotation())
sketch13.addGeometry([
    Part.Circle(Vector(14, -14, 0), Vector(0, 0, 1), 1.5),
    Part.Circle(Vector(-14, -14, 0), Vector(0, 0, 1), 1.5),
    Part.Circle(Vector(14, 14, 0), Vector(0, 0, 1), 1.5),
    Part.Circle(Vector(-14, 14, 0), Vector(0, 0, 1), 1.5),
], False)
sketch13.addConstraint([
    Sketcher.Constraint("Equal", 0, 1),
    Sketcher.Constraint("Equal", 1, 2),
    Sketcher.Constraint("Equal", 2, 3),
    Sketcher.Constraint("Symmetric", 1, 3, 2, 3, -1, 1),
    Sketcher.Constraint("Symmetric", 0, 3, 3, 3, -1, 1),
    Sketcher.Constraint("Symmetric", 0, 3, 1, 3, -2),
    Sketcher.Constraint("Diameter", 0, Q("3 mm")),
    Sketcher.Constraint("DistanceX", -1, 1, 0, 3, Q("14 mm")),
    Sketcher.Constraint("DistanceY", 0, 3, -1, 1, Q("14 mm")),
])
pocket6 = doc.addObject("PartDesign::Pocket", "Pocket005")
body.addObject(pocket6)
pocket6.Profile = sketch13
pocket6.Length = 7.25

sketch14 = doc.addObject("Sketcher::SketchObject", "Sketch013")
body.addObject(sketch14)
sketch14.AttachmentSupport = (doc.YZ_Plane, [""])
sketch14.MapMode = "FlatFace"
sketch14.AttachmentOffset = App.Placement(Vector(0, 0, -10), App.Rotation())
add_polygon(sketch14, [(-14.25, -25), (-9.25, -25), (-9.25, -20), (-14.25, -20)])
add_polygon(sketch14, [(9.25, -20), (9.25, -25), (14.25, -25), (14.25, -20)])
sketch14.addConstraint([
    Sketcher.Constraint("Horizontal", 0),
    Sketcher.Constraint("Vertical", 1),
    Sketcher.Constraint("Horizontal", 2),
    Sketcher.Constraint("Vertical", 3),
    Sketcher.Constraint("Vertical", 4),
    Sketcher.Constraint("Horizontal", 5),
    Sketcher.Constraint("Vertical", 6),
    Sketcher.Constraint("Horizontal", 7),
    Sketcher.Constraint("Symmetric", 0, 2, 4, 2, -2),
    Sketcher.Constraint("Symmetric", 2, 2, 6, 2, -2),
    Sketcher.Constraint("Equal", 7, 1),
    Sketcher.Constraint("DistanceX", 0, 1, 0, 2, Q("5 mm")),
    Sketcher.Constraint("DistanceY", 0, 2, -1, 1, Q("25 mm")),
    Sketcher.Constraint("DistanceX", 0, 2, 4, 2, Q("18.5 mm")),
])
pad8 = doc.addObject("PartDesign::Pad", "Pad007")
body.addObject(pad8)
pad8.Profile = sketch14
pad8.Length = 23.25

sketch15 = doc.addObject("Sketcher::SketchObject", "Sketch014")
body.addObject(sketch15)
sketch15.AttachmentSupport = (doc.XY_Plane, [""])
sketch15.MapMode = "FlatFace"
sketch15.AttachmentOffset = App.Placement(Vector(0, 0, -25), App.Rotation())
add_polygon(sketch15, [(15, 55), (15, -55), (-15, -55), (-15, 55)])
sketch15.addGeometry(Part.Circle(Vector(0, -46, 0), Vector(0, 0, 1), 2.1), False)
add_polygon(sketch15, [(-10, -14.25), (-10, -21), (10, -21), (10, -14.25)])
add_polygon(sketch15, [(-10, -2.5), (-10, -9.25), (10, -9.25), (10, -2.5)])
add_polygon(sketch15, [(-10, 9.25), (-10, 2.5), (10, 2.5), (10, 9.25)])
add_polygon(sketch15, [(-10, 21), (-10, 14.25), (10, 14.25), (10, 21)])
sketch15.addGeometry(Part.Circle(Vector(0, 46, 0), Vector(0, 0, 1), 2.1), False)
sketch15.addConstraint([
    Sketcher.Constraint("Vertical", 0),
    Sketcher.Constraint("Horizontal", 1),
    Sketcher.Constraint("Vertical", 2),
    Sketcher.Constraint("Horizontal", 3),
    Sketcher.Constraint("Vertical", 5),
    Sketcher.Constraint("Horizontal", 6),
    Sketcher.Constraint("Vertical", 7),
    Sketcher.Constraint("Horizontal", 8),
    Sketcher.Constraint("Vertical", 9),
    Sketcher.Constraint("Horizontal", 10),
    Sketcher.Constraint("Vertical", 11),
    Sketcher.Constraint("Horizontal", 12),
    Sketcher.Constraint("Vertical", 13),
    Sketcher.Constraint("Horizontal", 14),
    Sketcher.Constraint("Vertical", 15),
    Sketcher.Constraint("Horizontal", 16),
    Sketcher.Constraint("Vertical", 17),
    Sketcher.Constraint("Horizontal", 18),
    Sketcher.Constraint("Vertical", 19),
    Sketcher.Constraint("Horizontal", 20),
    Sketcher.Constraint("Equal", 4, 21),
    Sketcher.Constraint("Symmetric", 4, 3, 21, 3, -1, 1),
    Sketcher.Constraint("Symmetric", 0, 2, 2, 2, -1, 1),
    Sketcher.Constraint("Symmetric", 11, 2, 13, 2, -1, 1),
    Sketcher.Constraint("Symmetric", 9, 2, 15, 2, -1, 1),
    Sketcher.Constraint("Symmetric", 7, 2, 17, 2, -1, 1),
    Sketcher.Constraint("Symmetric", 5, 2, 19, 2, -1, 1),
    Sketcher.Constraint("PointOnObject", 4, 3, -2),
    Sketcher.Constraint("Vertical", 8, 2, 9, 2),
    Sketcher.Constraint("Vertical", 7, 2, 10, 2),
    Sketcher.Constraint("Vertical", 12, 2, 13, 2),
    Sketcher.Constraint("Equal", 7, 9),
    Sketcher.Constraint("Diameter", 4, Q("4.2 mm")),
    Sketcher.Constraint("DistanceX", 1, 2, 1, 1, Q("30 mm")),
    Sketcher.Constraint("DistanceX", 6, 1, 6, 2, Q("20 mm")),
    Sketcher.Constraint("DistanceY", 0, 2, 0, 1, Q("110 mm")),
    Sketcher.Constraint("DistanceY", 4, 3, -1, 1, Q("46 mm")),
    Sketcher.Constraint("DistanceY", 5, 2, -1, 1, Q("21 mm")),
    Sketcher.Constraint("DistanceY", 8, 2, 9, 2, Q("5 mm")),
    Sketcher.Constraint("DistanceY", 12, 2, 13, 2, Q("5 mm")),
])
pad9 = doc.addObject("PartDesign::Pad", "Pad008")
body.addObject(pad9)
pad9.Profile = sketch15
pad9.Length = 2
pad9.Reversed = True

doc.recompute()
